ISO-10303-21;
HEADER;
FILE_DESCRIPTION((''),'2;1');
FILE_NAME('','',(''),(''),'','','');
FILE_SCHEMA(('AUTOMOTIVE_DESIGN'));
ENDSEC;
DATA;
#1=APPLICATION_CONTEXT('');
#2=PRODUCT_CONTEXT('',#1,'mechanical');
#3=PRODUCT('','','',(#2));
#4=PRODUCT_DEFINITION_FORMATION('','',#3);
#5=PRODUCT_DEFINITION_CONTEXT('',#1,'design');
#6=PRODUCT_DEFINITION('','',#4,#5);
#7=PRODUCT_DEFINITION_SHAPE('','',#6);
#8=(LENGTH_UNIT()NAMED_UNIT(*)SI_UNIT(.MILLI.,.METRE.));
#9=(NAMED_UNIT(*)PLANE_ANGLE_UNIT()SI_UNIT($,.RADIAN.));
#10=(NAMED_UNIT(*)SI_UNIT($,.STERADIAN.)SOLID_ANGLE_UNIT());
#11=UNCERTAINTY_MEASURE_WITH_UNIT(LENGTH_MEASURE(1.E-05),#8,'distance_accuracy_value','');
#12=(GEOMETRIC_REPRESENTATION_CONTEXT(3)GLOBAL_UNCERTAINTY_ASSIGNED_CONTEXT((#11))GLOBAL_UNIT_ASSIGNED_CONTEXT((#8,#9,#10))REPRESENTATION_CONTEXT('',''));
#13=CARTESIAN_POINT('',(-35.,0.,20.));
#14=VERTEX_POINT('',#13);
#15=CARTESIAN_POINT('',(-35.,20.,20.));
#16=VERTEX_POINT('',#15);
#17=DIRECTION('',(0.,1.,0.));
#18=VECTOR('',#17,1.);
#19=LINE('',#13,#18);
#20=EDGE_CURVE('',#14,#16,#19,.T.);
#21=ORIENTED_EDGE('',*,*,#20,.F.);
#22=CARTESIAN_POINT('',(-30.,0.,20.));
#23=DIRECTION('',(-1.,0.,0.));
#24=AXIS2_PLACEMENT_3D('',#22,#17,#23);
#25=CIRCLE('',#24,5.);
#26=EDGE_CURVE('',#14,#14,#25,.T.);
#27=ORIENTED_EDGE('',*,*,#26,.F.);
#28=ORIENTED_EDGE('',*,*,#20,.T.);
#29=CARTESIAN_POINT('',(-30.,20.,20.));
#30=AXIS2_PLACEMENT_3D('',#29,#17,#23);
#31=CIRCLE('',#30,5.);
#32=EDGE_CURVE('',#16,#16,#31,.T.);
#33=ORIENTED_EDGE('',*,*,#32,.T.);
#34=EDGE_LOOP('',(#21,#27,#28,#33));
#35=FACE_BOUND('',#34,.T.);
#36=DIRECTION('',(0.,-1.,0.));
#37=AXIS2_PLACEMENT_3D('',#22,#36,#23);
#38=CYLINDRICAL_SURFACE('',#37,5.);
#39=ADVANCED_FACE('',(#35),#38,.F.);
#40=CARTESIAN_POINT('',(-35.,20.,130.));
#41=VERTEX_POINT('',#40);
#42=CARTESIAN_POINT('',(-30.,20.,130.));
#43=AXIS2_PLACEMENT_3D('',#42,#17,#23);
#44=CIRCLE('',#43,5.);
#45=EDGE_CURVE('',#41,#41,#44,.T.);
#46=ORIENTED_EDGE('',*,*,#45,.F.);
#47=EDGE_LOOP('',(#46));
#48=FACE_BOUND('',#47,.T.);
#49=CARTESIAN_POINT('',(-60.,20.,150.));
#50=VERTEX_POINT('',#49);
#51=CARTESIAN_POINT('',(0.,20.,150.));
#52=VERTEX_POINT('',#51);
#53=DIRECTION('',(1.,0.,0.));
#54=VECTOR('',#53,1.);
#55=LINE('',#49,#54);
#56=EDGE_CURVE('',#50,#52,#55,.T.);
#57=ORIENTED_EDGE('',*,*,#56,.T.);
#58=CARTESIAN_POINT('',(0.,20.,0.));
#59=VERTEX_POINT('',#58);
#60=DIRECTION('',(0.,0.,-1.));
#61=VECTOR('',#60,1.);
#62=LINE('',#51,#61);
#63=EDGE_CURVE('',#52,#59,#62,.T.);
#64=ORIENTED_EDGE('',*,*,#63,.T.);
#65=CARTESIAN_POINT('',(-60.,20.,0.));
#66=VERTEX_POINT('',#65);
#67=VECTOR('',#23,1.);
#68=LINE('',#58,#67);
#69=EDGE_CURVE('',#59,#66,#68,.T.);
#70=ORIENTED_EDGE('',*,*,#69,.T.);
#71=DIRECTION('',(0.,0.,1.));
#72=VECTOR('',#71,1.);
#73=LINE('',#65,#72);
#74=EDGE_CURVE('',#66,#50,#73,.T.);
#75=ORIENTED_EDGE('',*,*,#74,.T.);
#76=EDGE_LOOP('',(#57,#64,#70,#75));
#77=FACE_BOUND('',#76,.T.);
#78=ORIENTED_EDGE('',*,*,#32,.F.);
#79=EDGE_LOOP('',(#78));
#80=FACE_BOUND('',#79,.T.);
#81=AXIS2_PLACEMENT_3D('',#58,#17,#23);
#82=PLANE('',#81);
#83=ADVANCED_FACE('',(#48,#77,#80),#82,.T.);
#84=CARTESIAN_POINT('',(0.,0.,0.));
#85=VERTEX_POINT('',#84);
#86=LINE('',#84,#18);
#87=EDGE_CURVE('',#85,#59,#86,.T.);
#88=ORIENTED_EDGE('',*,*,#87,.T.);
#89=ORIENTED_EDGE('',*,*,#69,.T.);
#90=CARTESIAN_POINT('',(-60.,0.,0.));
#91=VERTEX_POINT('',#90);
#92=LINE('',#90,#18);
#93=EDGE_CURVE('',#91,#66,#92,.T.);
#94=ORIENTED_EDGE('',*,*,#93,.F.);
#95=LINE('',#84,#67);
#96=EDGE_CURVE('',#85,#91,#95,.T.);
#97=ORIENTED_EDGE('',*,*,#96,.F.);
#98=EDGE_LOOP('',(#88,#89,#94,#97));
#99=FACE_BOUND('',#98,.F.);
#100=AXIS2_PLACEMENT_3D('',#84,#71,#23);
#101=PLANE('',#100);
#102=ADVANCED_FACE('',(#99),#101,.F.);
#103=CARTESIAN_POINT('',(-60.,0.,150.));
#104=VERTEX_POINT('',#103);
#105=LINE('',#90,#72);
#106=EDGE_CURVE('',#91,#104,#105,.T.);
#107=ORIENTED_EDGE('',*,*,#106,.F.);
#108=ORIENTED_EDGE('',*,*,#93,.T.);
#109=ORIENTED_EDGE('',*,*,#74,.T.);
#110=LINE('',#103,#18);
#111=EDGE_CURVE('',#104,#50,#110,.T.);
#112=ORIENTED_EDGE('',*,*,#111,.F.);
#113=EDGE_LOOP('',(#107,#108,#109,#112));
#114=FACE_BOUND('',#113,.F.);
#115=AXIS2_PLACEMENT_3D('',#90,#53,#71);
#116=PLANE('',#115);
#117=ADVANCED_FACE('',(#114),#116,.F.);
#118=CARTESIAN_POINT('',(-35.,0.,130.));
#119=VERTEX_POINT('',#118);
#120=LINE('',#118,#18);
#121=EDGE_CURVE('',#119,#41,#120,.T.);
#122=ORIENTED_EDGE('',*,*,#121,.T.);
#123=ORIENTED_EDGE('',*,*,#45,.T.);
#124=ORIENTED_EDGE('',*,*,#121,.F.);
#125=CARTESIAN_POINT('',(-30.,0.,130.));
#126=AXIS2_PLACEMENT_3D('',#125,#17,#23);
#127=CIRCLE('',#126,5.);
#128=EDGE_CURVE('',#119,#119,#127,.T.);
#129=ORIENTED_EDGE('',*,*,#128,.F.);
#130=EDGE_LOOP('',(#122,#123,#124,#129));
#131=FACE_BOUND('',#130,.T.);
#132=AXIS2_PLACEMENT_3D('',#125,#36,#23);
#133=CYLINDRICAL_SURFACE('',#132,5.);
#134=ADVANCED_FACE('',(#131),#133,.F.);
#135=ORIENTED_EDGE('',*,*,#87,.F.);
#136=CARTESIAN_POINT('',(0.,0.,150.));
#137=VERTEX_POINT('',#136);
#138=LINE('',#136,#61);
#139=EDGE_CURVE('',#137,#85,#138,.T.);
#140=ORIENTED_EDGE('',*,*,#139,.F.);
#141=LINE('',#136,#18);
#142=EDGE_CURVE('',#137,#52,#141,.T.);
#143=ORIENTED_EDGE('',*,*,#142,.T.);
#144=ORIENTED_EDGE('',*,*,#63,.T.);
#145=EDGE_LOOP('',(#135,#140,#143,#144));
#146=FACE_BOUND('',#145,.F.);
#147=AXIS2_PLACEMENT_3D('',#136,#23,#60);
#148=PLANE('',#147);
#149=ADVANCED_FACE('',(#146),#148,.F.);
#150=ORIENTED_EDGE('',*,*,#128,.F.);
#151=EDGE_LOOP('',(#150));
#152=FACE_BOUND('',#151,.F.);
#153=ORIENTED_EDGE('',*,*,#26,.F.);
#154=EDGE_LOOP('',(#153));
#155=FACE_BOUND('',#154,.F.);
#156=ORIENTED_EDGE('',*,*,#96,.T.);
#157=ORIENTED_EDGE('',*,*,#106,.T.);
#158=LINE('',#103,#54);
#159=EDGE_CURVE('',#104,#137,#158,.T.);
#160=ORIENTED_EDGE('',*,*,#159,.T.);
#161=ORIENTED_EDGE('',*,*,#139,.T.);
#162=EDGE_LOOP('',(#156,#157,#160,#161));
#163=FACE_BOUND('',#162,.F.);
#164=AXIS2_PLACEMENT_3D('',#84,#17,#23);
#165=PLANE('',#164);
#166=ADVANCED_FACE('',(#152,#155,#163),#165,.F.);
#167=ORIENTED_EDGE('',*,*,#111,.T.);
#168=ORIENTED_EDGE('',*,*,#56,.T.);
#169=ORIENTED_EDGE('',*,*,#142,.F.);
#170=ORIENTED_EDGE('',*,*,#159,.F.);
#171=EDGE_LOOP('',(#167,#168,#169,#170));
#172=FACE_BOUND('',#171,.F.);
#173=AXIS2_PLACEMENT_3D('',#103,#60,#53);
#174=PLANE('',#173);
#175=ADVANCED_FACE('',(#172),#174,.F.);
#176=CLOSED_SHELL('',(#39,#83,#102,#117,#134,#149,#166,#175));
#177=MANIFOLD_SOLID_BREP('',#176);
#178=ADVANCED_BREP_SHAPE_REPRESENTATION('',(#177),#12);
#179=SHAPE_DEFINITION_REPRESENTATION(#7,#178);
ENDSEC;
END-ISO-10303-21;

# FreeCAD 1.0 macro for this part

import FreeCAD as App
import Part
import Sketcher

V = App.Vector


def add_polygon(sketch, points):
    """Adds a closed chain of lines whose ends are joined by coincident constraints."""
    first, n = sketch.GeometryCount, len(points)
    for a, b in zip(points, points[1:] + points[:1]):
        sketch.addGeometry(Part.LineSegment(App.Vector(*a, 0), App.Vector(*b, 0)), False)
    for i in range(n):
        sketch.addConstraint(Sketcher.Constraint("Coincident", first + i, 2, first + (i + 1) % n, 1))

doc = App.newDocument("Part")
body = doc.addObject("PartDesign::Body", "Body")

# Sketch on XZ plane
sketch1 = doc.addObject("Sketcher::SketchObject", "Sketch")
body.addObject(sketch1)
sketch1.AttachmentSupport = (doc.XZ_Plane, [""])
sketch1.MapMode = "FlatFace"
add_polygon(sketch1, [(0, 150), (0, 0), (-60, 0), (-60, 150)])  # lines 0-3
sketch1.addGeometry(Part.Circle(V(-30, 20, 0), V(0, 0, 1), 5), False)  # 4
sketch1.addGeometry(Part.Circle(V(-30, 130, 0), V(0, 0, 1), 5), False)  # 5
sketch1.addConstraint(Sketcher.Constraint("Vertical", 0))
sketch1.addConstraint(Sketcher.Constraint("Horizontal", 1))
sketch1.addConstraint(Sketcher.Constraint("Vertical", 2))
sketch1.addConstraint(Sketcher.Constraint("Horizontal", 3))
sketch1.addConstraint(Sketcher.Constraint("Coincident", 0, 2, -1, 1))
sketch1.addConstraint(Sketcher.Constraint("Equal", 4, 5))
sketch1.addConstraint(Sketcher.Constraint("Vertical", 4, 3, 5, 3))
sketch1.addConstraint(Sketcher.Constraint("Diameter", 4, 10.0))
sketch1.addConstraint(Sketcher.Constraint("DistanceX", 1, 2, 1, 1, 60.0))
sketch1.addConstraint(Sketcher.Constraint("DistanceY", 0, 2, 0, 1, 150.0))
sketch1.addConstraint(Sketcher.Constraint("DistanceX", 4, 3, -1, 1, 30.0))
sketch1.addConstraint(Sketcher.Constraint("DistanceY", -1, 1, 4, 3, 20.0))
sketch1.addConstraint(Sketcher.Constraint("DistanceY", 5, 3, 2, 2, 20.0))
pad1 = doc.addObject("PartDesign::Pad", "Pad")
body.addObject(pad1)
pad1.Profile = sketch1
pad1.Length = 20
pad1.Reversed = True

doc.recompute()
